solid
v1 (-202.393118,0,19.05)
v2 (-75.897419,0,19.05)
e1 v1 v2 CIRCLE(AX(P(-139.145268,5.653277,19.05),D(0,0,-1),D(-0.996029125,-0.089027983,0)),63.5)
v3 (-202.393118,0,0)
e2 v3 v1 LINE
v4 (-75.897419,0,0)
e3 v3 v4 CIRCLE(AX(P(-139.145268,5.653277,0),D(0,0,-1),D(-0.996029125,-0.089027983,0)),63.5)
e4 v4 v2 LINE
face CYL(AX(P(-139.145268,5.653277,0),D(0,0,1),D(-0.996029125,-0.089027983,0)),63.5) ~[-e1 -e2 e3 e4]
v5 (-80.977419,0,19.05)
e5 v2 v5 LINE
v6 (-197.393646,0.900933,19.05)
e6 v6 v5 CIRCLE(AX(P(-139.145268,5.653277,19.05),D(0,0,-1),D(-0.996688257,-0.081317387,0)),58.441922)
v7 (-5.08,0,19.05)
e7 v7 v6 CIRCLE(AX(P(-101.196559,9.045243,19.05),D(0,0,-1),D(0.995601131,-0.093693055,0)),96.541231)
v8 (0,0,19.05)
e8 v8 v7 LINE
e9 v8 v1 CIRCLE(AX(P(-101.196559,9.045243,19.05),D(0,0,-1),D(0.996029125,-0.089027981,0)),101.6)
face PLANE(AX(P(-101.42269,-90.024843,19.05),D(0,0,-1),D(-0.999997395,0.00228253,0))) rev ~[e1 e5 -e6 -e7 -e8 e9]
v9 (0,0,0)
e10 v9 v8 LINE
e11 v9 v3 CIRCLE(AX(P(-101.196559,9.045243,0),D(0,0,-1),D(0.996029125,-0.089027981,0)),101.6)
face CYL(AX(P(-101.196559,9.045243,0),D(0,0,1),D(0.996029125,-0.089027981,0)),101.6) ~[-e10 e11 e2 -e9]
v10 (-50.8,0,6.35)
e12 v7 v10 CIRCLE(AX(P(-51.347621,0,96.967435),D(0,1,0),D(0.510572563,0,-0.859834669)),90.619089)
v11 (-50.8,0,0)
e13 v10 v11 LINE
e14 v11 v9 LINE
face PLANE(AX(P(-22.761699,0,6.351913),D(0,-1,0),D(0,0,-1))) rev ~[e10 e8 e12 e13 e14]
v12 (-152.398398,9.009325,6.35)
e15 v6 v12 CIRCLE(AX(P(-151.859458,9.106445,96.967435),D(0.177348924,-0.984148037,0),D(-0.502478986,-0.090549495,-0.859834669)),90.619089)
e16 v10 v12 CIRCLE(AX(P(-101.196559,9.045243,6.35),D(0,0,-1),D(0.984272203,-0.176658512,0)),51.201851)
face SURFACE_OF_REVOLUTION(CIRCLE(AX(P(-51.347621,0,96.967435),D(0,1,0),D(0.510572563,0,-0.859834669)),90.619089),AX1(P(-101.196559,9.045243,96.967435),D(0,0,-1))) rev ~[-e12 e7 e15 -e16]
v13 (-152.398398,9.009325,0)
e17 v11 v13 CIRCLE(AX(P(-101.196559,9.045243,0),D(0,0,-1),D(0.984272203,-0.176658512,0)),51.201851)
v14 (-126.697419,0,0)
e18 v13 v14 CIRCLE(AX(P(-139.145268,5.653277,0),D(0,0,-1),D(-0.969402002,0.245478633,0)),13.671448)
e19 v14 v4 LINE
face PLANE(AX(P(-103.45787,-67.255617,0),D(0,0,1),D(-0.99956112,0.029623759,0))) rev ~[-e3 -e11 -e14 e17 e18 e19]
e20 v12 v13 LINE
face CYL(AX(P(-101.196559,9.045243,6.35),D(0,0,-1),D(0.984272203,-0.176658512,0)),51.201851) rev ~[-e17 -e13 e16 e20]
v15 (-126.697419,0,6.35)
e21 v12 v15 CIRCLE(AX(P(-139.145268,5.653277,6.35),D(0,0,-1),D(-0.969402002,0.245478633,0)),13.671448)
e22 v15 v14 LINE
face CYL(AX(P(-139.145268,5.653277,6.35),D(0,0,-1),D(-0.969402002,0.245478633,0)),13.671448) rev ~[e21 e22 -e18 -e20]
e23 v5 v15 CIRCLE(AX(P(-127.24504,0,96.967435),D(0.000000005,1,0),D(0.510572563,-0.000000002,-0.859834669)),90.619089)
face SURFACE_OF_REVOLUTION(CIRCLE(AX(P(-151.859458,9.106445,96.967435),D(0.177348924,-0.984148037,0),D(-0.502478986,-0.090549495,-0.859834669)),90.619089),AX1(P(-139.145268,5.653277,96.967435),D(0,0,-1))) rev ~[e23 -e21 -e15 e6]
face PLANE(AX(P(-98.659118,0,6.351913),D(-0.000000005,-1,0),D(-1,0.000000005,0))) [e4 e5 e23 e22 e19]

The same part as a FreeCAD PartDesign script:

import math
import FreeCAD as App
import Part
import Sketcher
from FreeCAD import Vector
Q = App.Units.Quantity

doc = App.newDocument("Part")
body = doc.addObject("PartDesign::Body", "Body")

# Sketch on XZ plane
sketch1 = doc.addObject("Sketcher::SketchObject", "Sketch")
body.addObject(sketch1)
sketch1.AttachmentSupport = (doc.XZ_Plane, [""])
sketch1.MapMode = "FlatFace"
sketch1.addGeometry(Part.LineSegment(Vector(-51, 0, 0), Vector(0, 0, 0)), False)
sketch1.addGeometry(Part.LineSegment(Vector(0, 0, 0), Vector(0, 19, 0)), False)
sketch1.addGeometry(Part.LineSegment(Vector(0, 19, 0), Vector(-5, 19, 0)), False)
sketch1.addGeometry(Part.ArcOfCircle(Part.Circle(Vector(-51, 97, 0), Vector(0, 0, 1), 91), math.radians(-90), math.radians(-59)), False)
sketch1.addGeometry(Part.LineSegment(Vector(-51, 6, 0), Vector(-51, 0, 0)), False)
sketch1.addConstraint(Sketcher.Constraint("Coincident", 0, 2, 1, 1))
sketch1.addConstraint(Sketcher.Constraint("Coincident", 1, 2, 2, 1))
sketch1.addConstraint(Sketcher.Constraint("Coincident", 2, 2, 3, 2))
sketch1.addConstraint(Sketcher.Constraint("Coincident", 3, 1, 4, 1))
sketch1.addConstraint(Sketcher.Constraint("Coincident", 4, 2, 0, 1))
sketch1.addConstraint(Sketcher.Constraint("Horizontal", 0))
sketch1.addConstraint(Sketcher.Constraint("Vertical", 1))
sketch1.addConstraint(Sketcher.Constraint("Horizontal", 2))
sketch1.addConstraint(Sketcher.Constraint("Vertical", 4))
sketch1.addConstraint(Sketcher.Constraint("Coincident", 0, 2, -1, 1))
sketch1.addConstraint(Sketcher.Constraint("DistanceX", 0, 1, 0, 2, Q("2 in")))
sketch1.addConstraint(Sketcher.Constraint("DistanceX", 2, 2, 2, 1, Q("0.2 in")))
sketch1.addConstraint(Sketcher.Constraint("DistanceY", 1, 1, 1, 2, Q("0.75 in")))
sketch1.addConstraint(Sketcher.Constraint("DistanceY", 4, 2, 4, 1, Q("0.25 in")))
sketch1.addConstraint(Sketcher.Constraint("Radius", 3, Q("90.619089 mm")))

# Sketch on XY plane
sketch2 = doc.addObject("Sketcher::SketchObject", "Sketch001")
body.addObject(sketch2)
sketch2.AttachmentSupport = (doc.XY_Plane, [""])
sketch2.MapMode = "FlatFace"
sketch2.addGeometry(Part.ArcOfCircle(Part.Circle(Vector(-101, 9, 0), Vector(0, 0, 1), 102), math.radians(-175), math.radians(-5)), False)
sketch2.addGeometry(Part.ArcOfCircle(Part.Circle(Vector(-139, 6, 0), Vector(0, 0, 1), 64), math.radians(-5), math.radians(185)), False)
sketch2.addConstraint(Sketcher.Constraint("Tangent", 0, 1, 1, 2))
sketch2.addConstraint(Sketcher.Constraint("Coincident", 0, 2, -1, 1))
sketch2.addConstraint(Sketcher.Constraint("PointOnObject", 0, 1, -1))
sketch2.addConstraint(Sketcher.Constraint("PointOnObject", 1, 1, -1))
sketch2.addConstraint(Sketcher.Constraint("Radius", 0, Q("4 in")))
sketch2.addConstraint(Sketcher.Constraint("Radius", 1, Q("2.5 in")))
sketch2.addConstraint(Sketcher.Constraint("DistanceX", 0, 1, 1, 1, Q("126.495699 mm")))
doc.recompute()

additivepipe = doc.addObject("PartDesign::AdditivePipe", "AdditivePipe")
body.addObject(additivepipe)
additivepipe.Profile = sketch1
additivepipe.Spine = (sketch2, ["Edge1", "Edge2"])

doc.recompute()
